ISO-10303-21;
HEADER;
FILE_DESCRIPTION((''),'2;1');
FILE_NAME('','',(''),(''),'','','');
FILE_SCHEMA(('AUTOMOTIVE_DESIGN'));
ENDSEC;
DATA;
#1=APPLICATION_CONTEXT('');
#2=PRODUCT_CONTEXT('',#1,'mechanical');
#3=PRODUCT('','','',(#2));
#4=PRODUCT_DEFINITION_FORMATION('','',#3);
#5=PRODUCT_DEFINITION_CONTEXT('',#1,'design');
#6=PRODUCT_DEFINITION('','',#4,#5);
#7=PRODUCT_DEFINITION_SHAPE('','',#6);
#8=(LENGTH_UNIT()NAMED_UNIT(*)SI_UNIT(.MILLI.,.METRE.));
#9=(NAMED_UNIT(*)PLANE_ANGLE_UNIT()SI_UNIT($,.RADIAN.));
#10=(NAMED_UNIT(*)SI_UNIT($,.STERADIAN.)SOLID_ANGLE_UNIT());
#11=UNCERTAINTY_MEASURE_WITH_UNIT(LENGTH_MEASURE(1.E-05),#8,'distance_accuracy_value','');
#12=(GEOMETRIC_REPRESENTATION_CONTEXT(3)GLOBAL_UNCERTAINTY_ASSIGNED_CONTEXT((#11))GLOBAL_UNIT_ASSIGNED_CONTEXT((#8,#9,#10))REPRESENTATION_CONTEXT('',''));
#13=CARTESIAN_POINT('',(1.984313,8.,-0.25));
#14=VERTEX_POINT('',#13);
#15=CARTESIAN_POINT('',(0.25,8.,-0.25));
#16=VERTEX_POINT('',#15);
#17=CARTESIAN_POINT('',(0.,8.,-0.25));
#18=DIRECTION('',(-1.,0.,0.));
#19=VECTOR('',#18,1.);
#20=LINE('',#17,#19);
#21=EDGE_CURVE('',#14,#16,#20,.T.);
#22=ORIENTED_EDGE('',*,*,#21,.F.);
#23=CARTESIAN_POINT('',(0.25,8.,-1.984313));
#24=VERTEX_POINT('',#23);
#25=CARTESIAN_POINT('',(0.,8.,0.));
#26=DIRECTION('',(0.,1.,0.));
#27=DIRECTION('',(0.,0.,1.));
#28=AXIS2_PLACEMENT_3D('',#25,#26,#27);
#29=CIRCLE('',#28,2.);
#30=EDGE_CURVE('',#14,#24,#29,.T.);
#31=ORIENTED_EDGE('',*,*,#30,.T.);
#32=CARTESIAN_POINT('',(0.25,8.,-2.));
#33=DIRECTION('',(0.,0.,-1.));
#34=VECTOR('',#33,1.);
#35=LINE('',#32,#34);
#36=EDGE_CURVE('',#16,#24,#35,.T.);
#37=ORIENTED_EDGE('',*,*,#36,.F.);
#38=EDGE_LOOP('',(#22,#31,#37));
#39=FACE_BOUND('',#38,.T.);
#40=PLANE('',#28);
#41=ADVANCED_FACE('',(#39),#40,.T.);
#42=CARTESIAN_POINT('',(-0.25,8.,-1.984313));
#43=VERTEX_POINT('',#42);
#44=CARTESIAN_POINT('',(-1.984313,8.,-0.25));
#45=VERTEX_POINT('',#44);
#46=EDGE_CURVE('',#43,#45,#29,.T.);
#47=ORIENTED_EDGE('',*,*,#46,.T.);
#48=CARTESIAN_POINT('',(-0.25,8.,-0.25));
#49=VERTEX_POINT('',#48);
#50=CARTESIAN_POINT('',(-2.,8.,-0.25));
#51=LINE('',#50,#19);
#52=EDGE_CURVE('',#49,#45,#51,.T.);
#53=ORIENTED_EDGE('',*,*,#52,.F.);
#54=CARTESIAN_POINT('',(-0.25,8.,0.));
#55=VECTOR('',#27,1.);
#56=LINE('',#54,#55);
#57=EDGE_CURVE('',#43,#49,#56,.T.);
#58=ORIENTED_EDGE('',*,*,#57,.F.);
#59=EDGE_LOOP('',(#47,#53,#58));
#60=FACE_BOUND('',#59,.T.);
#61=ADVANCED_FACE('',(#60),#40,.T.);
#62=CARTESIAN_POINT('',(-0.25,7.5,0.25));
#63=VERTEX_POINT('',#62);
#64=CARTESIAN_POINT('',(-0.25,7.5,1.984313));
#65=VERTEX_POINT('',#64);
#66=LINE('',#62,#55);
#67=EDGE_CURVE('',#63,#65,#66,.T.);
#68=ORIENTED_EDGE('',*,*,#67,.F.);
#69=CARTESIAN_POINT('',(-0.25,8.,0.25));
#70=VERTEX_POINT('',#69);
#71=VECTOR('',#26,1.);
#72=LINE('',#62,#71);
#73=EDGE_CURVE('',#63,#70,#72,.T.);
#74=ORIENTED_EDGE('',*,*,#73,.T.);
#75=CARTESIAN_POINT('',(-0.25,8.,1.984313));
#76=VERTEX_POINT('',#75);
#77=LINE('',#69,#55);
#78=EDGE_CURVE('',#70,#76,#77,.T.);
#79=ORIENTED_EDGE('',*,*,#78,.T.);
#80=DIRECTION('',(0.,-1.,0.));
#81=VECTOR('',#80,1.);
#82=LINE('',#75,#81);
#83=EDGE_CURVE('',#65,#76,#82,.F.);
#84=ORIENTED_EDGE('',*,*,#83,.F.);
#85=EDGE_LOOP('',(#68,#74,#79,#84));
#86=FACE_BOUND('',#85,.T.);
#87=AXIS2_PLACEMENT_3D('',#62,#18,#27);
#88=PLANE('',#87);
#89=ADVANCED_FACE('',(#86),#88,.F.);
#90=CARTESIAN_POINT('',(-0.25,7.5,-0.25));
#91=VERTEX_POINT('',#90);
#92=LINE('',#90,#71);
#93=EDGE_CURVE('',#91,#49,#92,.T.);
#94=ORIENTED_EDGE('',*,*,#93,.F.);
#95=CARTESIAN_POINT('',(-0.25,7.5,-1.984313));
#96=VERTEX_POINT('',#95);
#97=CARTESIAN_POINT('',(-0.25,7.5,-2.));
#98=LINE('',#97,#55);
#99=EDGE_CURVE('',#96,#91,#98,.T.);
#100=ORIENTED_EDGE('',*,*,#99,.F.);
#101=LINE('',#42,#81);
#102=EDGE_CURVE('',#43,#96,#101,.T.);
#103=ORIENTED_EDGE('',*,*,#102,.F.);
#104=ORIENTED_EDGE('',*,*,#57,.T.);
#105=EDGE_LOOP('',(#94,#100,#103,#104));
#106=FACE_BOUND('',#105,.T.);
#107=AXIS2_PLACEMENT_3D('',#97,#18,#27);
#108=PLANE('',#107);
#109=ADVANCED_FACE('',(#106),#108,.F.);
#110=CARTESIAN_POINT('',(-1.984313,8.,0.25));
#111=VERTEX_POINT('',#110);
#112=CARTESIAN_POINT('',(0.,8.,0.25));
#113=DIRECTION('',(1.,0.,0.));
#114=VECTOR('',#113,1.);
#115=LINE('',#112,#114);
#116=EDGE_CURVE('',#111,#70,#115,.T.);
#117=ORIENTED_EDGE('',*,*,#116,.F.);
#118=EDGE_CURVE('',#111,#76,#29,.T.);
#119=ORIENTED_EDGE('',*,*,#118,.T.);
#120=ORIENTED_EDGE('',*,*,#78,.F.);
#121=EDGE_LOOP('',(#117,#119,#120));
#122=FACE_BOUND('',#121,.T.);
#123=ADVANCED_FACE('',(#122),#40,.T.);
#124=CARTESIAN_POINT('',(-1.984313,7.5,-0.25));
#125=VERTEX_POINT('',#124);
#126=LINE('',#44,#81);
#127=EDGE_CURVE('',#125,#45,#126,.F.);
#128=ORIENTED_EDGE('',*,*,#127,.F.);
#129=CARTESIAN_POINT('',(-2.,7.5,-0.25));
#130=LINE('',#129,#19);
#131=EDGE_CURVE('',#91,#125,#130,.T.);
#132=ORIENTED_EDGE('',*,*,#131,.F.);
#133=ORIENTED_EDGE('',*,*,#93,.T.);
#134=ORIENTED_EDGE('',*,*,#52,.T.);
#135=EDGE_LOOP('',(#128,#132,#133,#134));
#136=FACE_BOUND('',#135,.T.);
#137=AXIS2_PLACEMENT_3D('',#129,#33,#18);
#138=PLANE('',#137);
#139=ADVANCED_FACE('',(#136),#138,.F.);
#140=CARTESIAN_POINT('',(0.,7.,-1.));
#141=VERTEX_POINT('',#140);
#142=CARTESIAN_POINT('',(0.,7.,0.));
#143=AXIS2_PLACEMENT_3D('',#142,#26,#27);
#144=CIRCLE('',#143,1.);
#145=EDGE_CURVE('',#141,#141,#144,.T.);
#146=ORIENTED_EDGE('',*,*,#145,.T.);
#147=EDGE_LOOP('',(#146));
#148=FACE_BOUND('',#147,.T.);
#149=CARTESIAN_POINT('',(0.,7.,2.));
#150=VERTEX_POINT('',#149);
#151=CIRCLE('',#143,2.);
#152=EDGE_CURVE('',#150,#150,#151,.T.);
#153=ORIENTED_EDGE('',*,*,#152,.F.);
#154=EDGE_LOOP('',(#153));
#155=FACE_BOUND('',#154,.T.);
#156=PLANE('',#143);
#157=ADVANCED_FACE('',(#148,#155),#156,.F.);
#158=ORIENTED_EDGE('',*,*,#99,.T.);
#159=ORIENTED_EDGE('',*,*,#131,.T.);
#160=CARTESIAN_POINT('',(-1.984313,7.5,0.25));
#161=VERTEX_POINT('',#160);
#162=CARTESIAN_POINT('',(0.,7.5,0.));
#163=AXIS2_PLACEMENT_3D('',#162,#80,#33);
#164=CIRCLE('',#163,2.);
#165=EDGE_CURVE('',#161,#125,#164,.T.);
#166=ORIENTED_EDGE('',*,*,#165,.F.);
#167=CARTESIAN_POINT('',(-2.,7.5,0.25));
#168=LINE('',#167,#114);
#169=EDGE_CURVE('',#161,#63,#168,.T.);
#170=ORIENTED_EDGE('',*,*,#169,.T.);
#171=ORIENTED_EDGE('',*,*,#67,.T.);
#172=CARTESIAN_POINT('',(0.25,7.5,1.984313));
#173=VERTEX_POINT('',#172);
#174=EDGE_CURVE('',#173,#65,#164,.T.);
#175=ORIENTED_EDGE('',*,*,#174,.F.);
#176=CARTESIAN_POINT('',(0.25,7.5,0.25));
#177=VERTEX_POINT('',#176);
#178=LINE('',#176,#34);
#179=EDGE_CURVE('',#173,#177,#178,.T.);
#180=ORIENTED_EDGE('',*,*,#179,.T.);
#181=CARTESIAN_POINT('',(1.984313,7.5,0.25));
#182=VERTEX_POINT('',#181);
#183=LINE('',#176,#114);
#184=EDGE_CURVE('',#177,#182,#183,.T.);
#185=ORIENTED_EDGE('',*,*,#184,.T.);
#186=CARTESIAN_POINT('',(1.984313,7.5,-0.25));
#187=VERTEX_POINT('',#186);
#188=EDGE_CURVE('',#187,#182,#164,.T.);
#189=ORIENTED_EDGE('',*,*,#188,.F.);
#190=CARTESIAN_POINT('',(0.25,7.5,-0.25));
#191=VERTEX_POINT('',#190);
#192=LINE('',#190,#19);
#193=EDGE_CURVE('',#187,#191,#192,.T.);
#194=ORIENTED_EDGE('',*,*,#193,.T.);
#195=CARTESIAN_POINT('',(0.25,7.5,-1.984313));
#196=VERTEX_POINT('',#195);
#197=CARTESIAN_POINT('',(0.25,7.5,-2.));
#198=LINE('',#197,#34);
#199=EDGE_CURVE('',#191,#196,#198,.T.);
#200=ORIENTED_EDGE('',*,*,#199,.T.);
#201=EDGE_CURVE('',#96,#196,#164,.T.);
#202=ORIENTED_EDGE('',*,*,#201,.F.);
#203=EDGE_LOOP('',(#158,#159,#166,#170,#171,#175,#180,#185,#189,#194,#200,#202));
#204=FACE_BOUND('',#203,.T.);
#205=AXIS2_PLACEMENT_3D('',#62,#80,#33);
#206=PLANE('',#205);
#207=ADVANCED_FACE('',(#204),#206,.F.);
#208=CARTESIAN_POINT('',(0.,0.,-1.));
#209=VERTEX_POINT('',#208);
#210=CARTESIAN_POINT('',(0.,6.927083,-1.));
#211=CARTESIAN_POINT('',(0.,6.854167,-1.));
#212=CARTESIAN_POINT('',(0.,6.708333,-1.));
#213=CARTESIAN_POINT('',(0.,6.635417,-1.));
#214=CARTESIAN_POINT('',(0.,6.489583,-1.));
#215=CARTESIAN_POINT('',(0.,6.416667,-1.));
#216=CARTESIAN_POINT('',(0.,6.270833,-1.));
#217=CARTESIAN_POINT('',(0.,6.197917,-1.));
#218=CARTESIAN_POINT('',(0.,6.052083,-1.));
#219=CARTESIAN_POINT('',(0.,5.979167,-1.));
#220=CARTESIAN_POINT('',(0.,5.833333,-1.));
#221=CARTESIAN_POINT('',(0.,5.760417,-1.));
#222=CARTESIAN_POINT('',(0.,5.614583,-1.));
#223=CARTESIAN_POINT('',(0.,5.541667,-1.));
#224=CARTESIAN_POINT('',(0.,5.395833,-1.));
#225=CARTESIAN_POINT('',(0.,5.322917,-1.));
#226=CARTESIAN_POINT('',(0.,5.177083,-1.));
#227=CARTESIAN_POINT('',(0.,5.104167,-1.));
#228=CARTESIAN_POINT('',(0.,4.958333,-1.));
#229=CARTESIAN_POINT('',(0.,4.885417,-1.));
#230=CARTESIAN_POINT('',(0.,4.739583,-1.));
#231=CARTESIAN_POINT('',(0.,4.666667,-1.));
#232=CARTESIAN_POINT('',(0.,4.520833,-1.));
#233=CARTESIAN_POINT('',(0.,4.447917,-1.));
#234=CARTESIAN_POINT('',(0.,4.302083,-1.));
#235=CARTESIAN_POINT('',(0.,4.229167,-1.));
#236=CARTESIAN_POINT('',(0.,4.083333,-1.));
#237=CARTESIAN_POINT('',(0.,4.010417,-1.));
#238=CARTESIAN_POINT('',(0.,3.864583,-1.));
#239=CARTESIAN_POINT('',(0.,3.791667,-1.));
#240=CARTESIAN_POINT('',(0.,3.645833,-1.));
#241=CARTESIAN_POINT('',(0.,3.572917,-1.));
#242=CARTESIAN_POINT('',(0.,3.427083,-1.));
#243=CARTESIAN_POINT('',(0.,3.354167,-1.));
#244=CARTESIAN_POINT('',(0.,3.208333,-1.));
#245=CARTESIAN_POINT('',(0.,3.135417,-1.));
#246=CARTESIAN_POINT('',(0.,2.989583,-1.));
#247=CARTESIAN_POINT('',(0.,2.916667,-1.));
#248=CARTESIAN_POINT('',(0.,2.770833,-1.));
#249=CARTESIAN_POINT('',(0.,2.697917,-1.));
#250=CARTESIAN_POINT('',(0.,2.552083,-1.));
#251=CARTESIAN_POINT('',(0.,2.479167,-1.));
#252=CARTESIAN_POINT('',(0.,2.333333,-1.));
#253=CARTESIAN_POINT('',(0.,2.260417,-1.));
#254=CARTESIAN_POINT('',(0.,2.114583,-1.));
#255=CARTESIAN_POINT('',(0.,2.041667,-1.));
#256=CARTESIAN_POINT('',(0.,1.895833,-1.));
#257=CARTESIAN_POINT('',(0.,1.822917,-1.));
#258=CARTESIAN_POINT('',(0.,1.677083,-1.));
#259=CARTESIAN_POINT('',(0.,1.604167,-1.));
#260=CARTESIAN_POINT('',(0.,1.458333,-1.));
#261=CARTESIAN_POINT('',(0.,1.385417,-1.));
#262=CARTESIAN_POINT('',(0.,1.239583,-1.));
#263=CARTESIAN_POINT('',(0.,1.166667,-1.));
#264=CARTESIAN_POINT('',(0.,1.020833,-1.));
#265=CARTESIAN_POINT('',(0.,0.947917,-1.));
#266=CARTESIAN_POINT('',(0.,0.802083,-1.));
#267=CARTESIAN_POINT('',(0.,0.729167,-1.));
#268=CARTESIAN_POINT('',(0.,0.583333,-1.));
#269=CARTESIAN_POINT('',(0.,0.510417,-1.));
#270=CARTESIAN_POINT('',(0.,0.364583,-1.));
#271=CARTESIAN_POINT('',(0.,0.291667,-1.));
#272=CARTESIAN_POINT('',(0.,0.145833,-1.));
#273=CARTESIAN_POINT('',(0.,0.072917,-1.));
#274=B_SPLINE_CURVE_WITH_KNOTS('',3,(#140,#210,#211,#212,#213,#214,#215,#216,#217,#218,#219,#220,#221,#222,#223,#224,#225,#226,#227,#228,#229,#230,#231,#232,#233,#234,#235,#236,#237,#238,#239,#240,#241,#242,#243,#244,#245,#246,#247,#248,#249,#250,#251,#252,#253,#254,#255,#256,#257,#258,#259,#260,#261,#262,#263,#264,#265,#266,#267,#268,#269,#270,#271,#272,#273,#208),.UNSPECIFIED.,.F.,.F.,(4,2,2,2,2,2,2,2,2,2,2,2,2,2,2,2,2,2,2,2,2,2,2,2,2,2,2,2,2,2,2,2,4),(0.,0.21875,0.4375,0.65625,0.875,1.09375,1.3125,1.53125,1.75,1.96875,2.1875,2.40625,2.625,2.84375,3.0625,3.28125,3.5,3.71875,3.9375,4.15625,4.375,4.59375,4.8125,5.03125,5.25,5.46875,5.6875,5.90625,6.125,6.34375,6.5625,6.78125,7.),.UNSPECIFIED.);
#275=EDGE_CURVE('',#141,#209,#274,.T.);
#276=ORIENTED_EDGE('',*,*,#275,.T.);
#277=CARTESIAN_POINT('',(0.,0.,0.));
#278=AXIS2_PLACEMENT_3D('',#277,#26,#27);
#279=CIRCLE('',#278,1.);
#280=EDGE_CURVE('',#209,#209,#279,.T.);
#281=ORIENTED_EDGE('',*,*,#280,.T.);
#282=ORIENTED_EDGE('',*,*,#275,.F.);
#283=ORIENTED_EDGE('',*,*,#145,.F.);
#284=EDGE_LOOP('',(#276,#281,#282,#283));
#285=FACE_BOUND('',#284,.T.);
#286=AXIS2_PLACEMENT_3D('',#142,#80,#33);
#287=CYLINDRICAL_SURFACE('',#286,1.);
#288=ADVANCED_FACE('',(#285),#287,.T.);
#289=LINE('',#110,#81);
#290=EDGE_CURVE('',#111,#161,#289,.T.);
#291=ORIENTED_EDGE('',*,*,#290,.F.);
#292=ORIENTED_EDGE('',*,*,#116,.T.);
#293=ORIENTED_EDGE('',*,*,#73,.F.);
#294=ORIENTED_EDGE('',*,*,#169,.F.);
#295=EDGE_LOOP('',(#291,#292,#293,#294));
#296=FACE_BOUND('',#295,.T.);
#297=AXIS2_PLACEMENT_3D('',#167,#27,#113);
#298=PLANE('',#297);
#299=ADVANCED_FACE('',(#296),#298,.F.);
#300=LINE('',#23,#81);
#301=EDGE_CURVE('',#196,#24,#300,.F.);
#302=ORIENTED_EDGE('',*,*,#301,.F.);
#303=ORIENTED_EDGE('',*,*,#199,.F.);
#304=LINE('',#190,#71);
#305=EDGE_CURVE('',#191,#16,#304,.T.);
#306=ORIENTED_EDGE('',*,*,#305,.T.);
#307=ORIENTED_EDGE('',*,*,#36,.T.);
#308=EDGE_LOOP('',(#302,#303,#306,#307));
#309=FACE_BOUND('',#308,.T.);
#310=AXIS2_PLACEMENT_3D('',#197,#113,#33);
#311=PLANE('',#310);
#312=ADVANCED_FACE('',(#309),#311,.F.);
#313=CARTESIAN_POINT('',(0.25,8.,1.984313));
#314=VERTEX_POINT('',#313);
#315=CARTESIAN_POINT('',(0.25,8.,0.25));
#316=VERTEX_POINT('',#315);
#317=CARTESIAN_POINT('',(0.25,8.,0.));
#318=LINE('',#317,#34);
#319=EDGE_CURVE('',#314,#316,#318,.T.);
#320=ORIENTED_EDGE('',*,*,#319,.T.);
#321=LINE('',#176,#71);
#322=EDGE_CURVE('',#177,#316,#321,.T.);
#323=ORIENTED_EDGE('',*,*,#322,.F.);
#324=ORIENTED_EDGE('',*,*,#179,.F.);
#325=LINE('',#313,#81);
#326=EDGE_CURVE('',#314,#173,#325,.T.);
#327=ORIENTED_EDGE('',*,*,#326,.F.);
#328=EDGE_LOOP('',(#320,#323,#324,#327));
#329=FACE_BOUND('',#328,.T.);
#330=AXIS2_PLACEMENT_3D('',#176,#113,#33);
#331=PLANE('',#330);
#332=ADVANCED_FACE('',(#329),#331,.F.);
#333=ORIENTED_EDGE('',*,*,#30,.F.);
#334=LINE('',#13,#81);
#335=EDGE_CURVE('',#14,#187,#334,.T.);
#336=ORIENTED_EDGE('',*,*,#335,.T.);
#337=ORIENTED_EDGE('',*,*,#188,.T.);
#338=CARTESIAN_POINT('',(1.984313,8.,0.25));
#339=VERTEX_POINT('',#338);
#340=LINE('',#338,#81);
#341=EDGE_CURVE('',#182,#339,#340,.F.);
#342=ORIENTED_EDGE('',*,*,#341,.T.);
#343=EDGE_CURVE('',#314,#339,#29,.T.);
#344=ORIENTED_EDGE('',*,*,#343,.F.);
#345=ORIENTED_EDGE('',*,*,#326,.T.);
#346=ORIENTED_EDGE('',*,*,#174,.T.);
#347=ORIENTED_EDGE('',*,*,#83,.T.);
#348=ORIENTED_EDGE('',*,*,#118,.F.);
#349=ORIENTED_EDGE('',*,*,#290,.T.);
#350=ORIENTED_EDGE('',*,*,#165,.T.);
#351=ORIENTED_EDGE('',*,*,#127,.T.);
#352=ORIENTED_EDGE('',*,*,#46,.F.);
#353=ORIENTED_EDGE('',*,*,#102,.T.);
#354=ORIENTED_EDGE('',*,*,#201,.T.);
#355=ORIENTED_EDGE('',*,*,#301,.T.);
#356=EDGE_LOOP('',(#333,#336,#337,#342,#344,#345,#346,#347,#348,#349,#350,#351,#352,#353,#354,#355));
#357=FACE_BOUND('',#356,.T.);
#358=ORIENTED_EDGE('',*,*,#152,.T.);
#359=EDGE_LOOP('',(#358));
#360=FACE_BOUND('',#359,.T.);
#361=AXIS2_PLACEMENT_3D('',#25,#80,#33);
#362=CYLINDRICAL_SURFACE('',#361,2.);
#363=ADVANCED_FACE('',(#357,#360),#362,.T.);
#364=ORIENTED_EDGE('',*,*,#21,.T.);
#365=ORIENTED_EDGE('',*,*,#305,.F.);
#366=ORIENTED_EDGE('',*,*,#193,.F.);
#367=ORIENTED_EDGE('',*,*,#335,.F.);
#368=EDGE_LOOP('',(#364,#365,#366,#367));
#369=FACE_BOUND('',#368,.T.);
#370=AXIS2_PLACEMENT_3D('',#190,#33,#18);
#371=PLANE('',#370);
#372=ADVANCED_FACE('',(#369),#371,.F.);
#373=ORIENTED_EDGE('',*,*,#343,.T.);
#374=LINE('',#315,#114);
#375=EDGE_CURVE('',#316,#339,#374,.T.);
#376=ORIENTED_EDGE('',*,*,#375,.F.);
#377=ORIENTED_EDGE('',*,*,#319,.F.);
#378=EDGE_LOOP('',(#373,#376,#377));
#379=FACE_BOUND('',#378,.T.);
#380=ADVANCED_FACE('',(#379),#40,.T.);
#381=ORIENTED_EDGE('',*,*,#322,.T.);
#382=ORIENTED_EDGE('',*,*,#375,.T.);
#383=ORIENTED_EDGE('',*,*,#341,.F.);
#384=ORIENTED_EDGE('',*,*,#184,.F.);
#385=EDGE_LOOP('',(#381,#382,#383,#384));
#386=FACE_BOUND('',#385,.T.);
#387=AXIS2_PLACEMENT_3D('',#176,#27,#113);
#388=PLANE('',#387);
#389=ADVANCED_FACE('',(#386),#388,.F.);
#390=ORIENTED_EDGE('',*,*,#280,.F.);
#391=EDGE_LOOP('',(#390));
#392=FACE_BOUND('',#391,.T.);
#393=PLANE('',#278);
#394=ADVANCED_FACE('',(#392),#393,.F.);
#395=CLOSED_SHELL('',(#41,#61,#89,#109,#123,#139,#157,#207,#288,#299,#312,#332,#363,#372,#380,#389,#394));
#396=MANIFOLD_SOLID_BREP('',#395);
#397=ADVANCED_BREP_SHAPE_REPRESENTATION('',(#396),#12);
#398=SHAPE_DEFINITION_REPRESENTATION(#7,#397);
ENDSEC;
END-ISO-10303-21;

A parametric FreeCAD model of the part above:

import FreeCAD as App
import Part
import Sketcher
from FreeCAD import Vector


def add_polygon(sketch, points):
    """Adds a closed chain of lines whose ends are joined by coincident constraints."""
    first, n = sketch.GeometryCount, len(points)
    for a, b in zip(points, points[1:] + points[:1]):
        sketch.addGeometry(Part.LineSegment(App.Vector(*a, 0), App.Vector(*b, 0)), False)
    for i in range(n):
        sketch.addConstraint(Sketcher.Constraint("Coincident", first + i, 2, first + (i + 1) % n, 1))

doc = App.newDocument("Part")
params = doc.addObject("Spreadsheet::Sheet", "Params")
for row, (alias, value) in enumerate([
    ("sketch1_diameter", "2 mm"),
    ("pad1_length", "7 mm"),
    ("sketch2_diameter", "4 mm"),
    ("pad2_length", "1 mm"),
    ("sketch3_width", "0.5 mm"),
    ("pocket1_length", "0.5 mm"),
], start=1):
    params.set(f"A{row}", alias)
    params.set(f"B{row}", "=" + value)
    params.setAlias(f"B{row}", alias)

body = doc.addObject("PartDesign::Body", "Body")

# Sketch on XZ plane
sketch1 = doc.addObject("Sketcher::SketchObject", "Sketch")
body.addObject(sketch1)
sketch1.AttachmentSupport = (doc.XZ_Plane, [""])
sketch1.MapMode = "FlatFace"
sketch1.addGeometry(Part.Circle(Vector(0, 0, 0), Vector(0, 0, 1), 1), False)
sketch1.addConstraint([
    Sketcher.Constraint("Coincident", 0, 3, -1, 1),
    Sketcher.Constraint("Diameter", 0, 2.0),
])
sketch1.setExpression("Constraints[1]", "Params.sketch1_diameter")
pad1 = doc.addObject("PartDesign::Pad", "Pad")
body.addObject(pad1)
pad1.Profile = sketch1
pad1.setExpression("Length", "Params.pad1_length")
pad1.Reversed = True

# Sketch on XZ plane
sketch2 = doc.addObject("Sketcher::SketchObject", "Sketch001")
body.addObject(sketch2)
sketch2.AttachmentSupport = (doc.XZ_Plane, [""])
sketch2.MapMode = "FlatFace"
sketch2.AttachmentOffset = App.Placement(Vector(0, 0, -7), App.Rotation())
sketch2.addGeometry(Part.Circle(Vector(0, 0, 0), Vector(0, 0, 1), 2), False)
sketch2.addConstraint([
    Sketcher.Constraint("Coincident", 0, 3, -1, 1),
    Sketcher.Constraint("Diameter", 0, 4.0),
])
sketch2.setExpression("Constraints[1]", "Params.sketch2_diameter")
pad2 = doc.addObject("PartDesign::Pad", "Pad001")
body.addObject(pad2)
pad2.Profile = sketch2
pad2.setExpression("Length", "Params.pad2_length")
pad2.Reversed = True

# Sketch on XZ plane
sketch3 = doc.addObject("Sketcher::SketchObject", "Sketch002")
body.addObject(sketch3)
sketch3.AttachmentSupport = (doc.XZ_Plane, [""])
sketch3.MapMode = "FlatFace"
sketch3.AttachmentOffset = App.Placement(Vector(0, 0, -8), App.Rotation())
add_polygon(sketch3, [(-2, -0.2), (-2, 0.2), (-0.2, 0.2), (-0.2, 2), (0.2, 2), (0.2, 0.2), (2, 0.2), (2, -0.2), (0.2, -0.2), (0.2, -2), (-0.2, -2), (-0.2, -0.2)])  # lines 0-11
sketch3.addConstraint([
    Sketcher.Constraint("Vertical", 0),
    Sketcher.Constraint("Horizontal", 1),
    Sketcher.Constraint("Vertical", 2),
    Sketcher.Constraint("Horizontal", 3),
    Sketcher.Constraint("Vertical", 4),
    Sketcher.Constraint("Horizontal", 5),
    Sketcher.Constraint("Vertical", 6),
    Sketcher.Constraint("Horizontal", 7),
    Sketcher.Constraint("Vertical", 8),
    Sketcher.Constraint("Horizontal", 9),
    Sketcher.Constraint("Vertical", 10),
    Sketcher.Constraint("Horizontal", 11),
    Sketcher.Constraint("Symmetric", 0, 2, 6, 2, -1, 1),
    Sketcher.Constraint("Symmetric", 2, 2, 8, 2, -1, 1),
    Sketcher.Constraint("Symmetric", 4, 2, 10, 2, -1, 1),
    Sketcher.Constraint("Symmetric", 1, 2, 4, 2, -2),
    Sketcher.Constraint("Equal", 9, 0),
    Sketcher.Constraint("Equal", 11, 2),
    Sketcher.Constraint("DistanceX", 3, 1, 3, 2, 0.5),
    Sketcher.Constraint("DistanceX", 0, 2, -1, 1, 2.0),
])
sketch3.setExpression("Constraints[30]", "Params.sketch3_width")
pocket1 = doc.addObject("PartDesign::Pocket", "Pocket")
body.addObject(pocket1)
pocket1.Profile = sketch3
pocket1.setExpression("Length", "Params.pocket1_length")
pocket1.Reversed = True

doc.recompute()
